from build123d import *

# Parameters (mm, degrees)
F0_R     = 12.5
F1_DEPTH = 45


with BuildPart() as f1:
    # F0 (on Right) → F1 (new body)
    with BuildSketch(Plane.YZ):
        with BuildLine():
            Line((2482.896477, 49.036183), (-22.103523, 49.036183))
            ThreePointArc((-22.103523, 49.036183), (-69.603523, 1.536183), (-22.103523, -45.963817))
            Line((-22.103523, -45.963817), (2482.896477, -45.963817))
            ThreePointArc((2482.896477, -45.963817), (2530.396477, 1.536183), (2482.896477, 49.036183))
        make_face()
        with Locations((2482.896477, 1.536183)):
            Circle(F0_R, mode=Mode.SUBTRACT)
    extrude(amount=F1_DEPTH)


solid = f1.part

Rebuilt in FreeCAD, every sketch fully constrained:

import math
import FreeCAD as App
import Part
import Sketcher

doc = App.newDocument("Part")
body = doc.addObject("PartDesign::Body", "Body")

# Sketch on YZ plane
sketch1 = doc.addObject("Sketcher::SketchObject", "Sketch")
body.addObject(sketch1)
sketch1.AttachmentSupport = (doc.YZ_Plane, [""])
sketch1.MapMode = "FlatFace"
sketch1.addGeometry([
    Part.LineSegment(App.Vector(2483, 49, 0), App.Vector(-22, 49, 0)),  # 0
    Part.ArcOfCircle(Part.Circle(App.Vector(-22, 2, 0), App.Vector(0, 0, 1), 48), math.radians(90), math.radians(270)),  # 1
    Part.LineSegment(App.Vector(-22, -46, 0), App.Vector(2483, -46, 0)),  # 2
    Part.ArcOfCircle(Part.Circle(App.Vector(2483, 2, 0), App.Vector(0, 0, 1), 48), math.radians(-90), math.radians(90)),  # 3
    Part.Circle(App.Vector(2483, 2, 0), App.Vector(0, 0, 1), 12),  # 4
], False)
sketch1.addConstraint([
    Sketcher.Constraint("Tangent", 0, 2, 1, 1),
    Sketcher.Constraint("Tangent", 1, 2, 2, 1),
    Sketcher.Constraint("Tangent", 2, 2, 3, 1),
    Sketcher.Constraint("Tangent", 3, 2, 0, 1),
    Sketcher.Constraint("Horizontal", 0),
    Sketcher.Constraint("Horizontal", 2),
    Sketcher.Constraint("Coincident", 4, 3, 3, 3),
    Sketcher.Constraint("Diameter", 4, 25.0),
    Sketcher.Constraint("Radius", 1, 47.5),
    Sketcher.Constraint("DistanceX", 0, 2, 0, 1, 2505.0),
    Sketcher.Constraint("DistanceX", 1, 3, -1, 1, 22.103523),
    Sketcher.Constraint("DistanceY", -1, 1, 1, 3, 1.536183),
])
pad1 = doc.addObject("PartDesign::Pad", "Pad")
body.addObject(pad1)
pad1.Profile = sketch1
pad1.Length = 45

doc.recompute()
